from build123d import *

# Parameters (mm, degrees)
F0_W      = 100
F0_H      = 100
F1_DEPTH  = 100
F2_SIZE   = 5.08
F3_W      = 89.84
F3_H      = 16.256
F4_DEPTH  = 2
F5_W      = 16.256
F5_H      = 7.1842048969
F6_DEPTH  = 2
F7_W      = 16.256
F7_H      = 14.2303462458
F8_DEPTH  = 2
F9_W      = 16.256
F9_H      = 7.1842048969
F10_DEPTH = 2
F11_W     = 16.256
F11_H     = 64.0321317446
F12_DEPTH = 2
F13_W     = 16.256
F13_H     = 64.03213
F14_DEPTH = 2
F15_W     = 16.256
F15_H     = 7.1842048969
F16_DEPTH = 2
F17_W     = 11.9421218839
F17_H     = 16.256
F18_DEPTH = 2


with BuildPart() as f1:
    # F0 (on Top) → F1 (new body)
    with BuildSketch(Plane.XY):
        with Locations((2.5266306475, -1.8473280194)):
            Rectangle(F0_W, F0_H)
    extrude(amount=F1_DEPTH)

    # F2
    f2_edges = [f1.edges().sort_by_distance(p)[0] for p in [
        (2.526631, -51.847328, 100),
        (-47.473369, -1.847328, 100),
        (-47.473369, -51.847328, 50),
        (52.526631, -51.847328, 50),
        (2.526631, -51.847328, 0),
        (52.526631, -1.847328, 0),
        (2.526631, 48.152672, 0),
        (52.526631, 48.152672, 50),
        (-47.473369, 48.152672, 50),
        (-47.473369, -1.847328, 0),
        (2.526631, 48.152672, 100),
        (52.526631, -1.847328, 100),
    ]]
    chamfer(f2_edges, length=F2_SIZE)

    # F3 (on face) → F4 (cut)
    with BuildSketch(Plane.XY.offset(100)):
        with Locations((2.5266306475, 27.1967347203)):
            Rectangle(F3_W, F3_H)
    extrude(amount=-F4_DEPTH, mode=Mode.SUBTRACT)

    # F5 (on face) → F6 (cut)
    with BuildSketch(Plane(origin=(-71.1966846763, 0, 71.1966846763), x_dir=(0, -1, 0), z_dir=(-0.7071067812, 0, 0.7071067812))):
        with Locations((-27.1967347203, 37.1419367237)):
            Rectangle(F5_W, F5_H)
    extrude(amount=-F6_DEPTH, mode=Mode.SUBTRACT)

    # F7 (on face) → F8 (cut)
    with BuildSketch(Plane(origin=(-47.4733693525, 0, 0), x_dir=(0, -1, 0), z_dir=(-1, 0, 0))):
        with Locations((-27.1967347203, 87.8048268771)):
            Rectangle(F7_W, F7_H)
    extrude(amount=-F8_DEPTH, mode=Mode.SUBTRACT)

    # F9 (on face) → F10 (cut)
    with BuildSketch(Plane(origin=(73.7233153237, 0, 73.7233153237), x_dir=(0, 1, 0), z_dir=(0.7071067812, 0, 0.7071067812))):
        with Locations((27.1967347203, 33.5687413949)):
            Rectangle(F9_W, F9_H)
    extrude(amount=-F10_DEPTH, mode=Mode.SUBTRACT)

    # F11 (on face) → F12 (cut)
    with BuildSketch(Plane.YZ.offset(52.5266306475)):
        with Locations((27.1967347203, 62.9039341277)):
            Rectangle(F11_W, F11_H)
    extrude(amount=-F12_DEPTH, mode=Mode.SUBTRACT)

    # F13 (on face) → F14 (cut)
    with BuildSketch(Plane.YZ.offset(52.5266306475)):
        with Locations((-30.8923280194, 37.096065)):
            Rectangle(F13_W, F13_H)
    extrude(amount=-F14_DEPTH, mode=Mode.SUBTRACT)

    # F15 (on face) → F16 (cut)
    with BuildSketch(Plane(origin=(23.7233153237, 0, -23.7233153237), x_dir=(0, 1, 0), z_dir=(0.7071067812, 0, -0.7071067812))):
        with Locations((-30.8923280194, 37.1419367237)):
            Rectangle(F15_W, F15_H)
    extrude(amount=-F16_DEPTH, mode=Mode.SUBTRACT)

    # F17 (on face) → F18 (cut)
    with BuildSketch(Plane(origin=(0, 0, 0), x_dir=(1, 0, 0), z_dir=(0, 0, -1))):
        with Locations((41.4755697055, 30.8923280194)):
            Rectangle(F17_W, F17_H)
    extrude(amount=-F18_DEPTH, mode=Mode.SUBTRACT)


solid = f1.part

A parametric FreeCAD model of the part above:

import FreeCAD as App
import Part
import Sketcher

V = App.Vector


def add_polygon(sketch, points):
    """Adds a closed chain of lines whose ends are joined by coincident constraints."""
    first, n = sketch.GeometryCount, len(points)
    for a, b in zip(points, points[1:] + points[:1]):
        sketch.addGeometry(Part.LineSegment(App.Vector(*a, 0), App.Vector(*b, 0)), False)
    for i in range(n):
        sketch.addConstraint(Sketcher.Constraint("Coincident", first + i, 2, first + (i + 1) % n, 1))

doc = App.newDocument("Part")
body = doc.addObject("PartDesign::Body", "Body")

# Sketch on XY plane
sketch1 = body.newObject("Sketcher::SketchObject", "Sketch")
sketch1.AttachmentSupport = (doc.getObject("XY_Plane"), [""])
sketch1.MapMode = "FlatFace"
add_polygon(sketch1, [(-47.473369, 48.152672), (-47.473369, -51.847328), (52.526631, -51.847328), (52.526631, 48.152672)])  # lines 0-3
sketch1.addConstraint(Sketcher.Constraint("Vertical", 0))
sketch1.addConstraint(Sketcher.Constraint("Horizontal", 1))
sketch1.addConstraint(Sketcher.Constraint("Vertical", 2))
sketch1.addConstraint(Sketcher.Constraint("Horizontal", 3))
sketch1.addConstraint(Sketcher.Constraint("Equal", 3, 0))
sketch1.addConstraint(Sketcher.Constraint("DistanceX", 1, 1, 1, 2, 100.0))
sketch1.addConstraint(Sketcher.Constraint("DistanceX", 0, 2, -1, 1, 47.473369))
sketch1.addConstraint(Sketcher.Constraint("DistanceY", 0, 2, -1, 1, 51.847328))
pad1 = body.newObject("PartDesign::Pad", "Pad")
pad1.Profile = sketch1
pad1.Length = 100
doc.recompute()

chamfer = body.newObject("PartDesign::Chamfer", "Chamfer")
chamfer.Base = (pad1, ["Edge1"])
chamfer.UseAllEdges = True
chamfer.Size = 5.08

# Sketch on XY plane
sketch2 = body.newObject("Sketcher::SketchObject", "Sketch001")
sketch2.AttachmentSupport = (doc.getObject("XY_Plane"), [""])
sketch2.MapMode = "FlatFace"
sketch2.AttachmentOffset = App.Placement(V(0, 0, 100), App.Rotation())
add_polygon(sketch2, [(-42.393369, 35.324735), (-42.393369, 19.068735), (47.446631, 19.068735), (47.446631, 35.324735)])  # lines 0-3
sketch2.addConstraint(Sketcher.Constraint("Vertical", 0))
sketch2.addConstraint(Sketcher.Constraint("Horizontal", 1))
sketch2.addConstraint(Sketcher.Constraint("Vertical", 2))
sketch2.addConstraint(Sketcher.Constraint("Horizontal", 3))
sketch2.addConstraint(Sketcher.Constraint("DistanceX", 1, 1, 1, 2, 89.84))
sketch2.addConstraint(Sketcher.Constraint("DistanceY", 0, 2, 0, 1, 16.256))
sketch2.addConstraint(Sketcher.Constraint("DistanceX", 0, 2, -1, 1, 42.393369))
sketch2.addConstraint(Sketcher.Constraint("DistanceY", -1, 1, 0, 2, 19.068735))
pocket1 = body.newObject("PartDesign::Pocket", "Pocket")
pocket1.Profile = sketch2
pocket1.Length = 2

# Sketch on an angled plane
sketch3 = body.newObject("Sketcher::SketchObject", "Sketch002")
sketch3.Placement = App.Placement(V(-71.196685, 0, 71.196685), App.Rotation(V(0, -1, 0), V(0.707106781, 0, 0.707106781), V(-0.707106781, 0, 0.707106781), "ZXY"))
add_polygon(sketch3, [(-35.324735, 40.734039), (-35.324735, 33.549834), (-19.068735, 33.549834), (-19.068735, 40.734039)])  # lines 0-3
sketch3.addConstraint(Sketcher.Constraint("Vertical", 0))
sketch3.addConstraint(Sketcher.Constraint("Horizontal", 1))
sketch3.addConstraint(Sketcher.Constraint("Vertical", 2))
sketch3.addConstraint(Sketcher.Constraint("Horizontal", 3))
sketch3.addConstraint(Sketcher.Constraint("DistanceX", 1, 1, 1, 2, 16.256))
sketch3.addConstraint(Sketcher.Constraint("DistanceY", 0, 2, 0, 1, 7.184205))
sketch3.addConstraint(Sketcher.Constraint("DistanceY", -1, 1, 2, 2, 40.734039))
sketch3.addConstraint(Sketcher.Constraint("DistanceX", 0, 2, -1, 1, 35.324735))
pocket2 = body.newObject("PartDesign::Pocket", "Pocket001")
pocket2.Profile = sketch3
pocket2.Length = 2

# Sketch on YZ plane
sketch4 = body.newObject("Sketcher::SketchObject", "Sketch003")
sketch4.AttachmentSupport = (doc.getObject("YZ_Plane"), [""])
sketch4.MapMode = "FlatFace"
sketch4.AttachmentOffset = App.Placement(V(0, 0, -47.473369), App.Rotation())
add_polygon(sketch4, [(35.324735, 94.92), (35.324735, 80.689654), (19.068735, 80.689654), (19.068735, 94.92)])  # lines 0-3
sketch4.addConstraint(Sketcher.Constraint("Vertical", 0))
sketch4.addConstraint(Sketcher.Constraint("Horizontal", 1))
sketch4.addConstraint(Sketcher.Constraint("Vertical", 2))
sketch4.addConstraint(Sketcher.Constraint("Horizontal", 3))
sketch4.addConstraint(Sketcher.Constraint("DistanceX", 1, 2, 1, 1, 16.256))
sketch4.addConstraint(Sketcher.Constraint("DistanceY", -1, 1, 2, 2, 94.92))
sketch4.addConstraint(Sketcher.Constraint("DistanceY", 0, 2, 0, 1, 14.230346))
sketch4.addConstraint(Sketcher.Constraint("DistanceX", -1, 1, 0, 2, 35.324735))
pocket3 = body.newObject("PartDesign::Pocket", "Pocket002")
pocket3.Profile = sketch4
pocket3.Length = 2
pocket3.Reversed = True

# Sketch on an angled plane
sketch5 = body.newObject("Sketcher::SketchObject", "Sketch004")
sketch5.Placement = App.Placement(V(73.723315, 0, 73.723315), App.Rotation(V(0, 1, 0), V(-0.707106781, 0, 0.707106781), V(0.707106781, 0, 0.707106781), "ZXY"))
add_polygon(sketch5, [(19.068735, 37.160844), (19.068735, 29.976639), (35.324735, 29.976639), (35.324735, 37.160844)])  # lines 0-3
sketch5.addConstraint(Sketcher.Constraint("Vertical", 0))
sketch5.addConstraint(Sketcher.Constraint("Horizontal", 1))
sketch5.addConstraint(Sketcher.Constraint("Vertical", 2))
sketch5.addConstraint(Sketcher.Constraint("Horizontal", 3))
sketch5.addConstraint(Sketcher.Constraint("DistanceX", 1, 1, 1, 2, 16.256))
sketch5.addConstraint(Sketcher.Constraint("DistanceY", 0, 2, 0, 1, 7.184205))
sketch5.addConstraint(Sketcher.Constraint("DistanceY", -1, 1, 0, 2, 29.976639))
sketch5.addConstraint(Sketcher.Constraint("DistanceX", -1, 1, 0, 2, 19.068735))
pocket4 = body.newObject("PartDesign::Pocket", "Pocket003")
pocket4.Profile = sketch5
pocket4.Length = 2

# Sketch on YZ plane
sketch6 = body.newObject("Sketcher::SketchObject", "Sketch005")
sketch6.AttachmentSupport = (doc.getObject("YZ_Plane"), [""])
sketch6.MapMode = "FlatFace"
sketch6.AttachmentOffset = App.Placement(V(0, 0, 52.526631), App.Rotation())
add_polygon(sketch6, [(19.068735, 94.92), (19.068735, 30.887868), (35.324735, 30.887868), (35.324735, 94.92)])  # lines 0-3
sketch6.addConstraint(Sketcher.Constraint("Vertical", 0))
sketch6.addConstraint(Sketcher.Constraint("Horizontal", 1))
sketch6.addConstraint(Sketcher.Constraint("Vertical", 2))
sketch6.addConstraint(Sketcher.Constraint("Horizontal", 3))
sketch6.addConstraint(Sketcher.Constraint("DistanceX", 1, 1, 1, 2, 16.256))
sketch6.addConstraint(Sketcher.Constraint("DistanceY", -1, 1, 2, 2, 94.92))
sketch6.addConstraint(Sketcher.Constraint("DistanceY", 0, 2, 0, 1, 64.032132))
sketch6.addConstraint(Sketcher.Constraint("DistanceX", -1, 1, 0, 2, 19.068735))
pocket5 = body.newObject("PartDesign::Pocket", "Pocket004")
pocket5.Profile = sketch6
pocket5.Length = 2

# Sketch on YZ plane
sketch7 = body.newObject("Sketcher::SketchObject", "Sketch006")
sketch7.AttachmentSupport = (doc.getObject("YZ_Plane"), [""])
sketch7.MapMode = "FlatFace"
sketch7.AttachmentOffset = App.Placement(V(0, 0, 52.526631), App.Rotation())
add_polygon(sketch7, [(-39.020328, 69.11213), (-39.020328, 5.08), (-22.764328, 5.08), (-22.764328, 69.11213)])  # lines 0-3
sketch7.addConstraint(Sketcher.Constraint("Vertical", 0))
sketch7.addConstraint(Sketcher.Constraint("Horizontal", 1))
sketch7.addConstraint(Sketcher.Constraint("Vertical", 2))
sketch7.addConstraint(Sketcher.Constraint("Horizontal", 3))
sketch7.addConstraint(Sketcher.Constraint("DistanceX", 1, 1, 1, 2, 16.256))
sketch7.addConstraint(Sketcher.Constraint("DistanceY", -1, 1, 0, 2, 5.08))
sketch7.addConstraint(Sketcher.Constraint("DistanceY", 0, 2, 0, 1, 64.03213))
sketch7.addConstraint(Sketcher.Constraint("DistanceX", 0, 2, -1, 1, 39.020328))
pocket6 = body.newObject("PartDesign::Pocket", "Pocket005")
pocket6.Profile = sketch7
pocket6.Length = 2

# Sketch on an angled plane
sketch8 = body.newObject("Sketcher::SketchObject", "Sketch007")
sketch8.Placement = App.Placement(V(23.723315, 0, -23.723315), App.Rotation(V(0, 1, 0), V(0.707106781, 0, 0.707106781), V(0.707106781, 0, -0.707106781), "ZXY"))
add_polygon(sketch8, [(-39.020328, 40.734039), (-39.020328, 33.549834), (-22.764328, 33.549834), (-22.764328, 40.734039)])  # lines 0-3
sketch8.addConstraint(Sketcher.Constraint("Vertical", 0))
sketch8.addConstraint(Sketcher.Constraint("Horizontal", 1))
sketch8.addConstraint(Sketcher.Constraint("Vertical", 2))
sketch8.addConstraint(Sketcher.Constraint("Horizontal", 3))
sketch8.addConstraint(Sketcher.Constraint("DistanceX", 1, 1, 1, 2, 16.256))
sketch8.addConstraint(Sketcher.Constraint("DistanceY", 0, 2, 0, 1, 7.184205))
sketch8.addConstraint(Sketcher.Constraint("DistanceX", 0, 2, -1, 1, 39.020328))
sketch8.addConstraint(Sketcher.Constraint("DistanceY", -1, 1, 2, 2, 40.734039))
pocket7 = body.newObject("PartDesign::Pocket", "Pocket006")
pocket7.Profile = sketch8
pocket7.Length = 2

# Sketch on XY plane
sketch9 = body.newObject("Sketcher::SketchObject", "Sketch008")
sketch9.AttachmentSupport = (doc.getObject("XY_Plane"), [""])
sketch9.MapMode = "FlatFace"
add_polygon(sketch9, [(35.504509, -39.020328), (35.504509, -22.764328), (47.446631, -22.764328), (47.446631, -39.020328)])  # lines 0-3
sketch9.addConstraint(Sketcher.Constraint("Vertical", 0))
sketch9.addConstraint(Sketcher.Constraint("Horizontal", 1))
sketch9.addConstraint(Sketcher.Constraint("Vertical", 2))
sketch9.addConstraint(Sketcher.Constraint("Horizontal", 3))
sketch9.addConstraint(Sketcher.Constraint("DistanceY", 0, 1, 0, 2, 16.256))
sketch9.addConstraint(Sketcher.Constraint("DistanceX", 1, 1, 1, 2, 11.942122))
sketch9.addConstraint(Sketcher.Constraint("DistanceX", -1, 1, 0, 2, 35.504509))
sketch9.addConstraint(Sketcher.Constraint("DistanceY", 0, 2, -1, 1, 22.764328))
pocket8 = body.newObject("PartDesign::Pocket", "Pocket007")
pocket8.Profile = sketch9
pocket8.Length = 2
pocket8.Reversed = True

doc.recompute()
